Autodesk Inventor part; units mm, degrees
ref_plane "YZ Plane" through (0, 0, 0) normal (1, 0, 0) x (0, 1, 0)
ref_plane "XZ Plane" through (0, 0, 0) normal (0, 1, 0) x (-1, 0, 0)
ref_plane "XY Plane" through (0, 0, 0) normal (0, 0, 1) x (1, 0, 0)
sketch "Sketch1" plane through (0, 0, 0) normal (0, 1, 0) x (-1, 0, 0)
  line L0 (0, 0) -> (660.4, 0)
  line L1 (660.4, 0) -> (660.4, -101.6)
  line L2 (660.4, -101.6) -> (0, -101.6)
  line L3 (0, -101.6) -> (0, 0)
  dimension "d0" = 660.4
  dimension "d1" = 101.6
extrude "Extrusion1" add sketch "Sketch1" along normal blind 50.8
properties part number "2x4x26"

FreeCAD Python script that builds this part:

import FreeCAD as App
import Part
import Sketcher

V = App.Vector
Q = App.Units.Quantity


def add_polygon(sketch, points):
    """Adds a closed chain of lines whose ends are joined by coincident constraints."""
    first, n = sketch.GeometryCount, len(points)
    for a, b in zip(points, points[1:] + points[:1]):
        sketch.addGeometry(Part.LineSegment(App.Vector(*a, 0), App.Vector(*b, 0)), False)
    for i in range(n):
        sketch.addConstraint(Sketcher.Constraint("Coincident", first + i, 2, first + (i + 1) % n, 1))

doc = App.newDocument("Part")
body = doc.addObject("PartDesign::Body", "Body")

# Sketch on XZ plane
sketch1 = body.newObject("Sketcher::SketchObject", "Sketch")
sketch1.AttachmentSupport = (doc.getObject("XZ_Plane"), [""])
sketch1.MapMode = "FlatFace"
add_polygon(sketch1, [(-660, 0), (0, 0), (0, -102), (-660, -102)])  # lines 0-3
sketch1.addConstraint(Sketcher.Constraint("Horizontal", 0))
sketch1.addConstraint(Sketcher.Constraint("Vertical", 1))
sketch1.addConstraint(Sketcher.Constraint("Horizontal", 2))
sketch1.addConstraint(Sketcher.Constraint("Vertical", 3))
sketch1.addConstraint(Sketcher.Constraint("Coincident", 0, 2, -1, 1))
sketch1.addConstraint(Sketcher.Constraint("DistanceX", 0, 1, 0, 2, Q("26 in")))
sketch1.addConstraint(Sketcher.Constraint("DistanceY", 1, 2, 1, 1, Q("4 in")))
pad1 = body.newObject("PartDesign::Pad", "Pad")
pad1.Profile = sketch1
pad1.Length = Q("2 in")
pad1.Reversed = True

doc.recompute()
